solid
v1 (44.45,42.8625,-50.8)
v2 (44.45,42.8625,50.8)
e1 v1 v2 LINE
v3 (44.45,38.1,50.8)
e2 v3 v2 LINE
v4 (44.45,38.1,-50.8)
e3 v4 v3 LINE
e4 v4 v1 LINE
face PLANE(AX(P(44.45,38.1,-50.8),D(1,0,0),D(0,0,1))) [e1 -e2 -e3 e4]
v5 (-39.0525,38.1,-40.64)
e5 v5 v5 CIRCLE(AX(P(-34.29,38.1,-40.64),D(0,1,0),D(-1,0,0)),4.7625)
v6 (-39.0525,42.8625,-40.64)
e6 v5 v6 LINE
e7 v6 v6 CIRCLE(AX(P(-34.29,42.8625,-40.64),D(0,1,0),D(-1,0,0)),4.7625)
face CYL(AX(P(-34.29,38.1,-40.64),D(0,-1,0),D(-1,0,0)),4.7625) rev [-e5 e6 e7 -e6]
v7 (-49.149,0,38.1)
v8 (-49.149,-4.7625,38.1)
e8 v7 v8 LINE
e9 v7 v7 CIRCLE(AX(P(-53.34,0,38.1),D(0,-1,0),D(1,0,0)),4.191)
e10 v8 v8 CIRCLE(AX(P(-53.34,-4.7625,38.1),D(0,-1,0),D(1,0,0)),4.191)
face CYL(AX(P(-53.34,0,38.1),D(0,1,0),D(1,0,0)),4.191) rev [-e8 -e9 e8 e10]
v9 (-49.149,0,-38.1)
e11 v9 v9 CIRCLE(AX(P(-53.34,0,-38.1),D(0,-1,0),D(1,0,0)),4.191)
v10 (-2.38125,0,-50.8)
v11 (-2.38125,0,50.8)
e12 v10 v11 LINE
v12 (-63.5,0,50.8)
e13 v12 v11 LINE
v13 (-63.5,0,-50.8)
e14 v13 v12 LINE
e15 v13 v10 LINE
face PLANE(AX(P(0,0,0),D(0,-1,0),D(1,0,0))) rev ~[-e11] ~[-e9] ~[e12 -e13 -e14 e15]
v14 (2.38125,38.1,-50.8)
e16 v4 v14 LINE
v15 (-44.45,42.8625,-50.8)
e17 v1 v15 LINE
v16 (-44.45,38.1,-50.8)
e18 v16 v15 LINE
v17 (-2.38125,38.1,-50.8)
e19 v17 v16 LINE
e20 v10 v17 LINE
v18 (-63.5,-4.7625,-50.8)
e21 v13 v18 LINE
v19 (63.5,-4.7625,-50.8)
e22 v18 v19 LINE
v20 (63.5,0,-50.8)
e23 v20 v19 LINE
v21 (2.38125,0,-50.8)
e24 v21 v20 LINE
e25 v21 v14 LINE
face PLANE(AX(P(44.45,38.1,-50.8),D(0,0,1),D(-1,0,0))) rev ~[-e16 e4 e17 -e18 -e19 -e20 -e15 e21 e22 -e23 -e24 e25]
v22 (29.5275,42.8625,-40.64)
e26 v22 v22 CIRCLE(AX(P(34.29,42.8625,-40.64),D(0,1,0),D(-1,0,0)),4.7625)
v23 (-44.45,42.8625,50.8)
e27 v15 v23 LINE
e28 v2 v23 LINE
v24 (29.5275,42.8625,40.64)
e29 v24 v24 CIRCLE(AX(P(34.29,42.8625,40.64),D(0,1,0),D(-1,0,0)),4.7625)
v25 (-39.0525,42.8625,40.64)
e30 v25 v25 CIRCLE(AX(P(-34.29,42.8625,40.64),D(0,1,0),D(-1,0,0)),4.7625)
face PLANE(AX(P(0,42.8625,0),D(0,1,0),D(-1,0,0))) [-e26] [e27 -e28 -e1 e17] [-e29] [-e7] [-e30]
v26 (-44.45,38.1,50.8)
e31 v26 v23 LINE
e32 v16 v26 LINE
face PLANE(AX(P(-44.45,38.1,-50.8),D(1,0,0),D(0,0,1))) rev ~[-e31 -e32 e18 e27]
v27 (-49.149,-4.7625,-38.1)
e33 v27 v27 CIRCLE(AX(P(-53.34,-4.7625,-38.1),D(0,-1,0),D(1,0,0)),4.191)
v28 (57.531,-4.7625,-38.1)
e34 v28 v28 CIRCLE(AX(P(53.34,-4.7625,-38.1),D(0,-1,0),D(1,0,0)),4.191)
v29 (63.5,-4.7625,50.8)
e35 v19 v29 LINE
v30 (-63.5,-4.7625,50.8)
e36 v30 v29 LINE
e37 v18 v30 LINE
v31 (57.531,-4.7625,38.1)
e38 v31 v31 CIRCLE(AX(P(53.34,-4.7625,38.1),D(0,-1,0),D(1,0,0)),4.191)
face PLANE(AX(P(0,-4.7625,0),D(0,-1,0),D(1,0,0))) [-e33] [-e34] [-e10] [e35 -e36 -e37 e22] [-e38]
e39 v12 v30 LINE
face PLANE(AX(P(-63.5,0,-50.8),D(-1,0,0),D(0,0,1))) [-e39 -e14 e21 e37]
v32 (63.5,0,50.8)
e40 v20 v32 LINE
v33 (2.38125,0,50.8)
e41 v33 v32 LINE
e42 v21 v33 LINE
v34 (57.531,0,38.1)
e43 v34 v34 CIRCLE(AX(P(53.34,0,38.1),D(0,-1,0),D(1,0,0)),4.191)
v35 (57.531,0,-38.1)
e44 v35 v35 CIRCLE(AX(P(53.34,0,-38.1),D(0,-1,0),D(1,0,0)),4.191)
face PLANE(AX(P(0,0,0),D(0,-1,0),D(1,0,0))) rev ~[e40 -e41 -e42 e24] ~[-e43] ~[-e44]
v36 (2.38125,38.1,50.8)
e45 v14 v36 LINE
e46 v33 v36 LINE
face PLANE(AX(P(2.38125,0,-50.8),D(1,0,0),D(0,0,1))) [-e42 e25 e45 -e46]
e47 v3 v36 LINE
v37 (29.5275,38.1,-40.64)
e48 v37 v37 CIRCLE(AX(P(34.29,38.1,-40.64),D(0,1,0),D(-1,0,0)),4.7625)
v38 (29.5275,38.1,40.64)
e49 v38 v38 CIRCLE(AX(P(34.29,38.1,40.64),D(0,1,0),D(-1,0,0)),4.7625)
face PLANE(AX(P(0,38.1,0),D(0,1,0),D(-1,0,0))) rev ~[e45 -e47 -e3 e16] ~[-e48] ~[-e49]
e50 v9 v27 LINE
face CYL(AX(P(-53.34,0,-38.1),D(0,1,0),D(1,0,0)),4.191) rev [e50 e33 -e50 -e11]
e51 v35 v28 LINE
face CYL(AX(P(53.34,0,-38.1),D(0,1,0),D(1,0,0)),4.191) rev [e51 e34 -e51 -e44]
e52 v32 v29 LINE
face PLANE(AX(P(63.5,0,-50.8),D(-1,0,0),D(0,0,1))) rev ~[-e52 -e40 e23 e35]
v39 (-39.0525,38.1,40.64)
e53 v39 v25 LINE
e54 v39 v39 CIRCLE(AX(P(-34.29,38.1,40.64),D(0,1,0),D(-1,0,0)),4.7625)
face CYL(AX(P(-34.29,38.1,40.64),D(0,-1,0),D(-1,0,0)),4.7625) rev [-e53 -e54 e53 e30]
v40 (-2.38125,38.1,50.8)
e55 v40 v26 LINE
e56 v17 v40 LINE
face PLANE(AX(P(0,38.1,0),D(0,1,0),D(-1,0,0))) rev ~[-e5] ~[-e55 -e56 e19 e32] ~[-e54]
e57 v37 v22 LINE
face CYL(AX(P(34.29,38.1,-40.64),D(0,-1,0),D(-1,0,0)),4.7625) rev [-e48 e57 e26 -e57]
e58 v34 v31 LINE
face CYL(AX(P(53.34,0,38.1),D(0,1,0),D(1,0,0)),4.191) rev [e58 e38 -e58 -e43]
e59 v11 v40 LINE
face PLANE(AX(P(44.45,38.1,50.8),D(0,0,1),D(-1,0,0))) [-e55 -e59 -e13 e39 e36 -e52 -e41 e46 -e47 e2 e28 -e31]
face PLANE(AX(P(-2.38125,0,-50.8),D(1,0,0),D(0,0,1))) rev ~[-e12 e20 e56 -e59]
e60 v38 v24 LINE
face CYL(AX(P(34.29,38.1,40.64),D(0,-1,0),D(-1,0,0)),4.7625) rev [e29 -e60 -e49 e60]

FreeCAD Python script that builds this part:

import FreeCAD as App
import Part
import Sketcher
Q = App.Units.Quantity


def add_polygon(sketch, points):
    """Adds a closed chain of lines whose ends are joined by coincident constraints."""
    first, n = sketch.GeometryCount, len(points)
    for a, b in zip(points, points[1:] + points[:1]):
        sketch.addGeometry(Part.LineSegment(App.Vector(*a, 0), App.Vector(*b, 0)), False)
    for i in range(n):
        sketch.addConstraint(Sketcher.Constraint("Coincident", first + i, 2, first + (i + 1) % n, 1))

doc = App.newDocument("Part")
body = doc.addObject("PartDesign::Body", "Body")

sketch1 = body.newObject("Sketcher::SketchObject", "Sketch")
sketch1.AttachmentSupport = (doc.getObject("XZ_Plane"), [""])
sketch1.MapMode = "FlatFace"
add_polygon(sketch1, [(-63.5, 50.8), (-63.5, -50.8), (63.5, -50.8), (63.5, 50.8)])
sketch1.addGeometry(Part.Circle(App.Vector(-53.34, -38.1, 0), App.Vector(0, 0, 1), 4.191), False)
sketch1.addGeometry(Part.Circle(App.Vector(53.34, -38.1, 0), App.Vector(0, 0, 1), 4.191), False)
sketch1.addGeometry(Part.Circle(App.Vector(-53.34, 38.1, 0), App.Vector(0, 0, 1), 4.191), False)
sketch1.addGeometry(Part.Circle(App.Vector(53.34, 38.1, 0), App.Vector(0, 0, 1), 4.191), False)
sketch1.addConstraint([
    Sketcher.Constraint("Vertical", 0),
    Sketcher.Constraint("Horizontal", 1),
    Sketcher.Constraint("Vertical", 2),
    Sketcher.Constraint("Horizontal", 3),
    Sketcher.Constraint("Equal", 4, 5),
    Sketcher.Constraint("Equal", 5, 6),
    Sketcher.Constraint("Equal", 6, 7),
    Sketcher.Constraint("Symmetric", 5, 3, 6, 3, -1, 1),
    Sketcher.Constraint("Symmetric", 4, 3, 7, 3, -1, 1),
    Sketcher.Constraint("Symmetric", 0, 2, 2, 2, -1, 1),
    Sketcher.Constraint("Symmetric", 4, 3, 5, 3, -2),
    Sketcher.Constraint("Diameter", 4, Q("0.33 in")),
    Sketcher.Constraint("DistanceX", 1, 1, 1, 2, Q("5 in")),
    Sketcher.Constraint("DistanceY", 0, 2, 0, 1, Q("4 in")),
    Sketcher.Constraint("DistanceY", 4, 3, 6, 3, Q("3 in")),
    Sketcher.Constraint("DistanceX", 4, 3, -1, 1, Q("2.1 in")),
])
pad1 = body.newObject("PartDesign::Pad", "Pad")
pad1.Profile = sketch1
pad1.Length = Q("0.1875 in")

sketch2 = body.newObject("Sketcher::SketchObject", "Sketch001")
sketch2.AttachmentSupport = (doc.getObject("XZ_Plane"), [""])
sketch2.MapMode = "FlatFace"
add_polygon(sketch2, [(2.38125, 50.8), (2.38125, -50.8), (-2.38125, -50.8), (-2.38125, 50.8)])
sketch2.addConstraint([
    Sketcher.Constraint("Vertical", 0),
    Sketcher.Constraint("Horizontal", 1),
    Sketcher.Constraint("Vertical", 2),
    Sketcher.Constraint("Horizontal", 3),
    Sketcher.Constraint("Symmetric", 0, 2, 2, 2, -1, 1),
    Sketcher.Constraint("DistanceY", 0, 2, 0, 1, Q("4 in")),
    Sketcher.Constraint("DistanceX", 1, 2, 1, 1, Q("0.1875 in")),
])
pad2 = body.newObject("PartDesign::Pad", "Pad001")
pad2.Profile = sketch2
pad2.Length = Q("1.5 in")
pad2.Reversed = True

sketch3 = body.newObject("Sketcher::SketchObject", "Sketch002")
sketch3.AttachmentSupport = (doc.getObject("XZ_Plane"), [""])
sketch3.MapMode = "FlatFace"
sketch3.AttachmentOffset = App.Placement(App.Vector(0, 0, -1.5 * 25.4), App.Rotation())
add_polygon(sketch3, [(44.45, 50.8), (44.45, -50.8), (-44.45, -50.8), (-44.45, 50.8)])
sketch3.addGeometry(Part.Circle(App.Vector(34.29, -40.64, 0), App.Vector(0, 0, 1), 4.7625), False)
sketch3.addGeometry(Part.Circle(App.Vector(-34.29, -40.64, 0), App.Vector(0, 0, 1), 4.7625), False)
sketch3.addGeometry(Part.Circle(App.Vector(34.29, 40.64, 0), App.Vector(0, 0, 1), 4.7625), False)
sketch3.addGeometry(Part.Circle(App.Vector(-34.29, 40.64, 0), App.Vector(0, 0, 1), 4.7625), False)
sketch3.addConstraint([
    Sketcher.Constraint("Vertical", 0),
    Sketcher.Constraint("Horizontal", 1),
    Sketcher.Constraint("Vertical", 2),
    Sketcher.Constraint("Horizontal", 3),
    Sketcher.Constraint("Equal", 4, 5),
    Sketcher.Constraint("Equal", 5, 6),
    Sketcher.Constraint("Equal", 6, 7),
    Sketcher.Constraint("Symmetric", 5, 3, 6, 3, -1, 1),
    Sketcher.Constraint("Symmetric", 4, 3, 7, 3, -1, 1),
    Sketcher.Constraint("Symmetric", 0, 2, 2, 2, -1, 1),
    Sketcher.Constraint("Symmetric", 4, 3, 5, 3, -2),
    Sketcher.Constraint("DistanceY", 0, 2, 0, 1, Q("4 in")),
    Sketcher.Constraint("Diameter", 4, Q("0.375 in")),
    Sketcher.Constraint("DistanceX", 1, 2, 1, 1, Q("3.5 in")),
    Sketcher.Constraint("DistanceY", 4, 3, -1, 1, Q("1.6 in")),
    Sketcher.Constraint("DistanceX", 5, 3, 4, 3, Q("2.7 in")),
])
pad3 = body.newObject("PartDesign::Pad", "Pad002")
pad3.Profile = sketch3
pad3.Length = Q("0.1875 in")
pad3.Reversed = True

doc.recompute()
